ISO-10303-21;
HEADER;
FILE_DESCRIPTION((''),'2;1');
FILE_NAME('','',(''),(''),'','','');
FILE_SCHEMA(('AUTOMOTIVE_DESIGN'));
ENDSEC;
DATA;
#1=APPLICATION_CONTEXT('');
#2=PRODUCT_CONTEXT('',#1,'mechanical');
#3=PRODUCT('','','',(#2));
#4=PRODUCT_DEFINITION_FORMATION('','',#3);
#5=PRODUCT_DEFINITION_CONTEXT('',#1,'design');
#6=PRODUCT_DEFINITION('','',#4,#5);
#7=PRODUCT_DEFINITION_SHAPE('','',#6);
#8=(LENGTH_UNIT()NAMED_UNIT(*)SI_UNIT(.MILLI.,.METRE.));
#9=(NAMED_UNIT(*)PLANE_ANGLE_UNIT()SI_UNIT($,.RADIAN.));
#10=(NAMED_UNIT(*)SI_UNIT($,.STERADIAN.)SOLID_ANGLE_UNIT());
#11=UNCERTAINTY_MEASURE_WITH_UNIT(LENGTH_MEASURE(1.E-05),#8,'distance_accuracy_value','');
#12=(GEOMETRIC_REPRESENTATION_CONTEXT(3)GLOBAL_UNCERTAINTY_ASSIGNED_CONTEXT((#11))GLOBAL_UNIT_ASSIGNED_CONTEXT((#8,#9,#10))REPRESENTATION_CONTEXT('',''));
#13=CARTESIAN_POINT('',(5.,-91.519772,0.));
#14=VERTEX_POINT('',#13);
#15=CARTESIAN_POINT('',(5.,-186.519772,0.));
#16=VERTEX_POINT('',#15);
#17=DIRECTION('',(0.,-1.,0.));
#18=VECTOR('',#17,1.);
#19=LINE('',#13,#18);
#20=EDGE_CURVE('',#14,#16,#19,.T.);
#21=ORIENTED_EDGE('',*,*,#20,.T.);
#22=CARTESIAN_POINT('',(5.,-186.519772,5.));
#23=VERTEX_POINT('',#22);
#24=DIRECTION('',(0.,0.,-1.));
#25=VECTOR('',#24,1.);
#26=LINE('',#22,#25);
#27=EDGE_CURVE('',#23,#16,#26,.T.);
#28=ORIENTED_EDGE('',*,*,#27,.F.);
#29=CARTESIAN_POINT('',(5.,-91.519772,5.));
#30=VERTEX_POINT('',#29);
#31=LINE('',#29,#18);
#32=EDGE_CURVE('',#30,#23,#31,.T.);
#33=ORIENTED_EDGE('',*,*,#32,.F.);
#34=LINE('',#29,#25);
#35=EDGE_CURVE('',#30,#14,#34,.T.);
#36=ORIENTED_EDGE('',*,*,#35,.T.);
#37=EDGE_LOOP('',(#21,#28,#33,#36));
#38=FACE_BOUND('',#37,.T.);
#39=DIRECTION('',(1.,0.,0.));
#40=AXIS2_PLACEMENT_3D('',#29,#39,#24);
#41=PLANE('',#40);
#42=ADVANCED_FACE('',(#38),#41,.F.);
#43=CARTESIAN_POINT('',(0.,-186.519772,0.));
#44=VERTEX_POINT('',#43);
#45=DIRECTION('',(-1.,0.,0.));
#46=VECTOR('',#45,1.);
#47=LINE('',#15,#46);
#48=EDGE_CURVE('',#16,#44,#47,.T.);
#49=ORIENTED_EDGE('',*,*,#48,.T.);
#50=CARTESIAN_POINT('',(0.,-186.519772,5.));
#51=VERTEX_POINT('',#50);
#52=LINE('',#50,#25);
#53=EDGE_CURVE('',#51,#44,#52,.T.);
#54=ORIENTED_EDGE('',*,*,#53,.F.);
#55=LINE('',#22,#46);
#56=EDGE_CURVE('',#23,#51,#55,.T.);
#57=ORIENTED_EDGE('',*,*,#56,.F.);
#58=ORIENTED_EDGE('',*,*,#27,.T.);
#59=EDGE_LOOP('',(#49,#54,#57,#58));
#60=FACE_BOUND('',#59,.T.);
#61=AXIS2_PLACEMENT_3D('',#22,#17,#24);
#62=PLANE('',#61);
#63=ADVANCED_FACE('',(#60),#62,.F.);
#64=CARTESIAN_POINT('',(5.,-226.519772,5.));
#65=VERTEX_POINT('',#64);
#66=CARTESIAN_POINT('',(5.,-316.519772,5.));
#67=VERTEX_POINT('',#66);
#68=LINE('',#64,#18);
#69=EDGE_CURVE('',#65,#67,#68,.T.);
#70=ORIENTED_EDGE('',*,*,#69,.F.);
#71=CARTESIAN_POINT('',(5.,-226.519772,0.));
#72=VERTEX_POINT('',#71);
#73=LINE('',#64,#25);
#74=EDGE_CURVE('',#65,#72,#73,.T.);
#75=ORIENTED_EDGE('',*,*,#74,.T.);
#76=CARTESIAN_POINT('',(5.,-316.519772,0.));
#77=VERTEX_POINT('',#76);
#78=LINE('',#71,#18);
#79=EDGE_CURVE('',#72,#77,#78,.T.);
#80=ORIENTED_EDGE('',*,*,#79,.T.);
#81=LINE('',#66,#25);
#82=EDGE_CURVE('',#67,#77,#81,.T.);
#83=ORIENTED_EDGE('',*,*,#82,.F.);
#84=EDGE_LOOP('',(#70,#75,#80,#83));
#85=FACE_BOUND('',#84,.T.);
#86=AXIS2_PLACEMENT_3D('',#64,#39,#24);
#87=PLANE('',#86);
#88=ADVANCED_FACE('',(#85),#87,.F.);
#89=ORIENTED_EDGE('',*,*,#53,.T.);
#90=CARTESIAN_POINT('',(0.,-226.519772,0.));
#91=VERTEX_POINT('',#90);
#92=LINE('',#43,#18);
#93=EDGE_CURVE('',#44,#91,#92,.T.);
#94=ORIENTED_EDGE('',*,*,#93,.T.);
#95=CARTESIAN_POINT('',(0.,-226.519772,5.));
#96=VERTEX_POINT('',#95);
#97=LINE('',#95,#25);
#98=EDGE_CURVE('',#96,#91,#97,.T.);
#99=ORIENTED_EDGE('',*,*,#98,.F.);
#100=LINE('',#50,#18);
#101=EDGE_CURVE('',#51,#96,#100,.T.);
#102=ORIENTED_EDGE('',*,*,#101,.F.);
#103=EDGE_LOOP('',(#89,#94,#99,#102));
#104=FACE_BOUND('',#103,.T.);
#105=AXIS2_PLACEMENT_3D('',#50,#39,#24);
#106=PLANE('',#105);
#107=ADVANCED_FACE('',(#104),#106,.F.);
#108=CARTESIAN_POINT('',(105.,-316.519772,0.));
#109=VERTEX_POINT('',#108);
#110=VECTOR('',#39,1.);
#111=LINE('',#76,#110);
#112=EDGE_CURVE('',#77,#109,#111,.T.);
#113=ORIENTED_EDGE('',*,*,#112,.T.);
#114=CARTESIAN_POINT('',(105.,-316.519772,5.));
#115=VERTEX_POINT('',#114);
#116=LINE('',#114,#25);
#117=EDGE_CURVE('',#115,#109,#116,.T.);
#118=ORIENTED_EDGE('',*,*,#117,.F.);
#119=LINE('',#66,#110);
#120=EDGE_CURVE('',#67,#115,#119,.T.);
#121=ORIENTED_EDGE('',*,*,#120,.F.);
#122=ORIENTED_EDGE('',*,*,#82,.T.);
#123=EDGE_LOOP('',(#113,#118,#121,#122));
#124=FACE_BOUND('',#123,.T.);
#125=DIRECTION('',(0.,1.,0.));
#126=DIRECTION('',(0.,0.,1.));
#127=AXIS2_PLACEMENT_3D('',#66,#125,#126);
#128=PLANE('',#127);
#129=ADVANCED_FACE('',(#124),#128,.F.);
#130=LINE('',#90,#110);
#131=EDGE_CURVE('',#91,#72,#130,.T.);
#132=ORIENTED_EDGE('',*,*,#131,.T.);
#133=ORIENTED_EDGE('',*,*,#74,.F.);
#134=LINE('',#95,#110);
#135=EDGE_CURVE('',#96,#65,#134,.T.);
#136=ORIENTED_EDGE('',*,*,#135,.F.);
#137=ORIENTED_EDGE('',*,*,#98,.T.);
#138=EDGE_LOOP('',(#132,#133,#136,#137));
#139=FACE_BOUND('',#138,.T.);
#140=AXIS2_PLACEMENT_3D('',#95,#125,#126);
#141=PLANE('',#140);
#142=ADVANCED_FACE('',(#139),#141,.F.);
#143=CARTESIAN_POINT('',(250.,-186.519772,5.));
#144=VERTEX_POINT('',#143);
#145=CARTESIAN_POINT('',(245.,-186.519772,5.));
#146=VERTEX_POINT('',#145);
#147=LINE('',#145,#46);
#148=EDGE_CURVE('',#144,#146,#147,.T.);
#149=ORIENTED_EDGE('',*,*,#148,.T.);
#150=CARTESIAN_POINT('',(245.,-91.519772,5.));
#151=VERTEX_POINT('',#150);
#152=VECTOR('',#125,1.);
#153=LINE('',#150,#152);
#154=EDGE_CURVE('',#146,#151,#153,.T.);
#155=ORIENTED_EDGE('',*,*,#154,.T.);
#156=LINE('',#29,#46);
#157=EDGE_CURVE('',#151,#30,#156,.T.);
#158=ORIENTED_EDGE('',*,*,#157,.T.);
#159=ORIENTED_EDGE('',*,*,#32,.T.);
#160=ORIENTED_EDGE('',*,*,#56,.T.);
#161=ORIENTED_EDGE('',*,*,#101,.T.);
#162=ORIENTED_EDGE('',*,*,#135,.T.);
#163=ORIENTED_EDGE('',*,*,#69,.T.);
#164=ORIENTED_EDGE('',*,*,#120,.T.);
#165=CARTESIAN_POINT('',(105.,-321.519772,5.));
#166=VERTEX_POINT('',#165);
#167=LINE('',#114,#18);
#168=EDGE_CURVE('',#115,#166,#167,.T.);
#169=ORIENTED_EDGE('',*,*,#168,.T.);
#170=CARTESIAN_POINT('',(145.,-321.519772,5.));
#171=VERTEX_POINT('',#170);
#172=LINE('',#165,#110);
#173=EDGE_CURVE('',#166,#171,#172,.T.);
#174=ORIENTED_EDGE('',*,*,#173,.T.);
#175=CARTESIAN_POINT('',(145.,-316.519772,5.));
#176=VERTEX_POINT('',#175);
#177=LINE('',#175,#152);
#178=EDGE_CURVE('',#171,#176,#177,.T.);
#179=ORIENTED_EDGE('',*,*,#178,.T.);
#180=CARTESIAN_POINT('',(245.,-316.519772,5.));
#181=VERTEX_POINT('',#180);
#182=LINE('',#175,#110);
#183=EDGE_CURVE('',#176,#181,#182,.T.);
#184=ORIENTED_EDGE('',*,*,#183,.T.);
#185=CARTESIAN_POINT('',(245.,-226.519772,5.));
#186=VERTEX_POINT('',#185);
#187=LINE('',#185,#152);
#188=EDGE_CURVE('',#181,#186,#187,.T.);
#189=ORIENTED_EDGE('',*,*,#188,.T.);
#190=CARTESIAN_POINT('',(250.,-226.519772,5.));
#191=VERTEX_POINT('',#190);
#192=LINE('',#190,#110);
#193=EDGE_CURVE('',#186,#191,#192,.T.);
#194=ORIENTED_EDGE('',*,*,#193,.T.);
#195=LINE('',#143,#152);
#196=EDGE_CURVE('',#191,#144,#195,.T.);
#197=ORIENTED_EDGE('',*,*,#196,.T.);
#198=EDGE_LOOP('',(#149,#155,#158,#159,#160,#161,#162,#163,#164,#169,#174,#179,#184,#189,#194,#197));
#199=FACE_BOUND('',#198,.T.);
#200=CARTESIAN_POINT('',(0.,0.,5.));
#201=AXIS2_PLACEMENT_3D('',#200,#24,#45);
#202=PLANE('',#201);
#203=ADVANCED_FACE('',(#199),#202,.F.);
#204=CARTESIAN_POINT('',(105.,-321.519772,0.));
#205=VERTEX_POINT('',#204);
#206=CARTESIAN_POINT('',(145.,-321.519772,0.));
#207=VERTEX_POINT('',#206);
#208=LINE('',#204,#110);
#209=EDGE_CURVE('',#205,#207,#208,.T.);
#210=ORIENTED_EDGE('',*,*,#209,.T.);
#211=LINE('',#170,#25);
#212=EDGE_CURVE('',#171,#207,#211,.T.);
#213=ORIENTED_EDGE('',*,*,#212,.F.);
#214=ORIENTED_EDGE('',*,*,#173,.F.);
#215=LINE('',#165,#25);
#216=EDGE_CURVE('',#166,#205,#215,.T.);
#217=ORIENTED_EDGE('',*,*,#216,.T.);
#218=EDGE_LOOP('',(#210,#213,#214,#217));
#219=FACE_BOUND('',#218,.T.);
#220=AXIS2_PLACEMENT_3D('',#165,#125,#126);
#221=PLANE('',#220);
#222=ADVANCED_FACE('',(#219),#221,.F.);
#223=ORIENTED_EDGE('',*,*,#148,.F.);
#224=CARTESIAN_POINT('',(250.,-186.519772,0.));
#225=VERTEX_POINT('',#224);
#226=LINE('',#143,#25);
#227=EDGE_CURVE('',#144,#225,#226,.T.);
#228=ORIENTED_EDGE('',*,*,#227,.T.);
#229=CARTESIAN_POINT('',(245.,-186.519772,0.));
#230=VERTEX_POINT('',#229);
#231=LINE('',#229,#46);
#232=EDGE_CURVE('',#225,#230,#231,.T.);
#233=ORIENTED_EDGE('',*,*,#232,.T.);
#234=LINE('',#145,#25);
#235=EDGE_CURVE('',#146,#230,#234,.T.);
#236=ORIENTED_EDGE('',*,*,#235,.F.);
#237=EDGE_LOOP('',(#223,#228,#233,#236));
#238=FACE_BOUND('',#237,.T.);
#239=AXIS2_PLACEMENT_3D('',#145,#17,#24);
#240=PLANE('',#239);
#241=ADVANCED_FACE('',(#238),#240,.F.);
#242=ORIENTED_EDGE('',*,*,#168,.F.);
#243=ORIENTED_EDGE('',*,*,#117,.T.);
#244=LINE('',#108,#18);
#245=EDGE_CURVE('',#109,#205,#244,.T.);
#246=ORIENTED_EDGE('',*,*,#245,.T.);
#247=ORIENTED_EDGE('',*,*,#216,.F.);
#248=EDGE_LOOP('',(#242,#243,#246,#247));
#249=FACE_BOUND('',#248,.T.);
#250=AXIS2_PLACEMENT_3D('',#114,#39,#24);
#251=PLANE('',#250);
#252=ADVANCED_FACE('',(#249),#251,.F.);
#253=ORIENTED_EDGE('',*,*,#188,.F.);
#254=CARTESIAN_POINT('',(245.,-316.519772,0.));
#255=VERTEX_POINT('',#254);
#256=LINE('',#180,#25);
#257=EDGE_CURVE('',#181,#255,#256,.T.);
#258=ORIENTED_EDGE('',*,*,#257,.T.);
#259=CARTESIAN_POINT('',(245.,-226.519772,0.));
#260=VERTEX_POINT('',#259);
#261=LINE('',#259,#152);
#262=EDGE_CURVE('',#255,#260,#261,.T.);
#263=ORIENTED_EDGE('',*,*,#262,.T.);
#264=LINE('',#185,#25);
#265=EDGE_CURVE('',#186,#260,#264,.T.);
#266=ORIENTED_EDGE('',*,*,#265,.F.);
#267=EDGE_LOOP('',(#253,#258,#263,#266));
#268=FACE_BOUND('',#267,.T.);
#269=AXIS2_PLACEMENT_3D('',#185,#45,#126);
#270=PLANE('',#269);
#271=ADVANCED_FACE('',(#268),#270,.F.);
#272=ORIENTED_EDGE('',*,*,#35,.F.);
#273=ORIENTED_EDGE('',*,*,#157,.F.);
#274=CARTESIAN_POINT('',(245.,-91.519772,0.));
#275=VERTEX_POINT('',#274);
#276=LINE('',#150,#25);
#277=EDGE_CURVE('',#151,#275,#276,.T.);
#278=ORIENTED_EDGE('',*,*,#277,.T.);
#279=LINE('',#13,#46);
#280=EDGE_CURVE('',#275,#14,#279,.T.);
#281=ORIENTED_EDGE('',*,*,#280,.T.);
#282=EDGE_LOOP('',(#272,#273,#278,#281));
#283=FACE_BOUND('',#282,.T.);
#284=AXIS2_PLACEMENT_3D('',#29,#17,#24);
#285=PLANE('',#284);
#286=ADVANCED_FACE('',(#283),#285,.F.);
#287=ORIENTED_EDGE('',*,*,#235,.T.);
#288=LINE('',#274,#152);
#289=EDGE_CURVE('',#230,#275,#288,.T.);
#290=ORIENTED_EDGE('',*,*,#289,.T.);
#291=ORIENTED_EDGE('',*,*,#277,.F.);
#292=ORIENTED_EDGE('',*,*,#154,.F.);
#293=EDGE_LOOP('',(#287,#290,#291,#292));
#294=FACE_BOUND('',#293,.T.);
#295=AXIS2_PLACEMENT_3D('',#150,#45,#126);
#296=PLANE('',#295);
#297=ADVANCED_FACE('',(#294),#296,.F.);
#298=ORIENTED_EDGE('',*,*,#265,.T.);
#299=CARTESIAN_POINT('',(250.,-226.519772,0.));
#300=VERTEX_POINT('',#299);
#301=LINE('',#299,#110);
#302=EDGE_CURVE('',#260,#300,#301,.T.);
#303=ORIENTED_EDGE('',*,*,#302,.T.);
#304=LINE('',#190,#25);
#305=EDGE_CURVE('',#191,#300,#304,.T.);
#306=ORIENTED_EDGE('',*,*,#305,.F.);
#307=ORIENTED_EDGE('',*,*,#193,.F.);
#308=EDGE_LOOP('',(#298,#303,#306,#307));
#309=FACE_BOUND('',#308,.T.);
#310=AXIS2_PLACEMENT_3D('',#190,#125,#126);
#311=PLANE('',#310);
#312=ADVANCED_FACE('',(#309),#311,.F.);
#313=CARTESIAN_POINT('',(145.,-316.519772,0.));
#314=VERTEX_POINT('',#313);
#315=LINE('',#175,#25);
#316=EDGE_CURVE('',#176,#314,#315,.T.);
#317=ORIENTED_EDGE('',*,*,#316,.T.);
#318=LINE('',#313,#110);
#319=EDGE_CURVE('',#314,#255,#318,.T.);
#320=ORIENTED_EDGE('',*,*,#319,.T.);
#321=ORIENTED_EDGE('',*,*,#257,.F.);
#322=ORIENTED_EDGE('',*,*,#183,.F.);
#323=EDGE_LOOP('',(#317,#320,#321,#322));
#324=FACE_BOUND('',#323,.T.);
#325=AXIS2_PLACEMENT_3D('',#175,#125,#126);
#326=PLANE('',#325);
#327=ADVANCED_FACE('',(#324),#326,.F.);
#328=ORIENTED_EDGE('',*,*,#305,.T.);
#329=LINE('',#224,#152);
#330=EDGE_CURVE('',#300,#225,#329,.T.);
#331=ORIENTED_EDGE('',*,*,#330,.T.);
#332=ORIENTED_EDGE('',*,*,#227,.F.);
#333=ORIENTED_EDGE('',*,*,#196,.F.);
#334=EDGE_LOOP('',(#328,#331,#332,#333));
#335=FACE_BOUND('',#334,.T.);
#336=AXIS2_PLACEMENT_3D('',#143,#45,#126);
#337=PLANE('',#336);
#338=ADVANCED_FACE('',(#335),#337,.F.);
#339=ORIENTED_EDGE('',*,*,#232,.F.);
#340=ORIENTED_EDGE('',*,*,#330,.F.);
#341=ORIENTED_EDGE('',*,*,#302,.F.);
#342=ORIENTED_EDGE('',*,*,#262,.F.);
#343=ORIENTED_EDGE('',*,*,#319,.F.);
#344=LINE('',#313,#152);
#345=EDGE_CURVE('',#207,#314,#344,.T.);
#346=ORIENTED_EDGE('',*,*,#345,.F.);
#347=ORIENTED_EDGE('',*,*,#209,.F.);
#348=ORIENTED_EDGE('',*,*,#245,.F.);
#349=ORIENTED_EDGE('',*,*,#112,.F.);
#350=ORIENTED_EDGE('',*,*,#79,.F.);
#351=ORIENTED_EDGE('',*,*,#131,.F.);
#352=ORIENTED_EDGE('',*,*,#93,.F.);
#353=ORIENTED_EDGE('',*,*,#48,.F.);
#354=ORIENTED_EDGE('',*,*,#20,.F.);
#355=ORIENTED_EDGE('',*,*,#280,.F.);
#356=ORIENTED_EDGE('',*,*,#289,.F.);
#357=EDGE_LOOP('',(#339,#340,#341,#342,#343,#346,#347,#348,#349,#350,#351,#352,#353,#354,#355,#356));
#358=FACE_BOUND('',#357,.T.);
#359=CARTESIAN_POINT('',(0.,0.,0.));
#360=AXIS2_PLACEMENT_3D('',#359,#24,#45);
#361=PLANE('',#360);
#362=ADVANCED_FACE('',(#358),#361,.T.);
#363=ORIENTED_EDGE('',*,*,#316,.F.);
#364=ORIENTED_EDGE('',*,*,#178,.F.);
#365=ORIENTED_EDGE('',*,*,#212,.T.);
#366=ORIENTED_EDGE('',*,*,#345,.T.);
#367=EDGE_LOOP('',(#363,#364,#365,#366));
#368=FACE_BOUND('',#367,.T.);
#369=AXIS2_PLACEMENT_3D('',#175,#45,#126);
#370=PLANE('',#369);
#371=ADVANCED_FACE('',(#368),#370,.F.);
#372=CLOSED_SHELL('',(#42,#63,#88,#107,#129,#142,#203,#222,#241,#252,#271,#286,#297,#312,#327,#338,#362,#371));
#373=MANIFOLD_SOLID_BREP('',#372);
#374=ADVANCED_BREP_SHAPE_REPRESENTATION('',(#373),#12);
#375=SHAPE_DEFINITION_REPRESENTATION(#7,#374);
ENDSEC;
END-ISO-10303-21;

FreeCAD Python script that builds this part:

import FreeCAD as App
import Part
import Sketcher

V = App.Vector
Q = App.Units.Quantity

doc = App.newDocument("Part")
body = doc.addObject("PartDesign::Body", "Body")

sketch1 = body.newObject("Sketcher::SketchObject", "Sketch")
sketch1.AttachmentSupport = (doc.getObject("XY_Plane"), [""])
sketch1.MapMode = "FlatFace"
sketch1.addGeometry(Part.LineSegment(V(245, -92, 0), V(5, -92, 0)), False)
sketch1.addGeometry(Part.LineSegment(V(5, -92, 0), V(5, -187, 0)), False)
sketch1.addGeometry(Part.LineSegment(V(5, -187, 0), V(0, -187, 0)), False)
sketch1.addGeometry(Part.LineSegment(V(0, -187, 0), V(0, -227, 0)), False)
sketch1.addGeometry(Part.LineSegment(V(0, -227, 0), V(5, -227, 0)), False)
sketch1.addGeometry(Part.LineSegment(V(5, -227, 0), V(5, -317, 0)), False)
sketch1.addGeometry(Part.LineSegment(V(5, -317, 0), V(105, -317, 0)), False)
sketch1.addGeometry(Part.LineSegment(V(105, -317, 0), V(105, -322, 0)), False)
sketch1.addGeometry(Part.LineSegment(V(105, -322, 0), V(145, -322, 0)), False)
sketch1.addGeometry(Part.LineSegment(V(145, -322, 0), V(145, -317, 0)), False)
sketch1.addGeometry(Part.LineSegment(V(145, -317, 0), V(245, -317, 0)), False)
sketch1.addGeometry(Part.LineSegment(V(245, -317, 0), V(245, -227, 0)), False)
sketch1.addGeometry(Part.LineSegment(V(245, -227, 0), V(250, -227, 0)), False)
sketch1.addGeometry(Part.LineSegment(V(250, -227, 0), V(250, -187, 0)), False)
sketch1.addGeometry(Part.LineSegment(V(250, -187, 0), V(245, -187, 0)), False)
sketch1.addGeometry(Part.LineSegment(V(245, -187, 0), V(245, -92, 0)), False)
sketch1.addConstraint(Sketcher.Constraint("Coincident", 0, 2, 1, 1))
sketch1.addConstraint(Sketcher.Constraint("Coincident", 1, 2, 2, 1))
sketch1.addConstraint(Sketcher.Constraint("Coincident", 2, 2, 3, 1))
sketch1.addConstraint(Sketcher.Constraint("Coincident", 3, 2, 4, 1))
sketch1.addConstraint(Sketcher.Constraint("Coincident", 4, 2, 5, 1))
sketch1.addConstraint(Sketcher.Constraint("Coincident", 5, 2, 6, 1))
sketch1.addConstraint(Sketcher.Constraint("Coincident", 6, 2, 7, 1))
sketch1.addConstraint(Sketcher.Constraint("Coincident", 7, 2, 8, 1))
sketch1.addConstraint(Sketcher.Constraint("Coincident", 8, 2, 9, 1))
sketch1.addConstraint(Sketcher.Constraint("Coincident", 9, 2, 10, 1))
sketch1.addConstraint(Sketcher.Constraint("Coincident", 10, 2, 11, 1))
sketch1.addConstraint(Sketcher.Constraint("Coincident", 11, 2, 12, 1))
sketch1.addConstraint(Sketcher.Constraint("Coincident", 12, 2, 13, 1))
sketch1.addConstraint(Sketcher.Constraint("Coincident", 13, 2, 14, 1))
sketch1.addConstraint(Sketcher.Constraint("Coincident", 14, 2, 15, 1))
sketch1.addConstraint(Sketcher.Constraint("Coincident", 15, 2, 0, 1))
sketch1.addConstraint(Sketcher.Constraint("Horizontal", 0))
sketch1.addConstraint(Sketcher.Constraint("Vertical", 1))
sketch1.addConstraint(Sketcher.Constraint("Horizontal", 2))
sketch1.addConstraint(Sketcher.Constraint("Vertical", 3))
sketch1.addConstraint(Sketcher.Constraint("Horizontal", 4))
sketch1.addConstraint(Sketcher.Constraint("Vertical", 5))
sketch1.addConstraint(Sketcher.Constraint("Horizontal", 6))
sketch1.addConstraint(Sketcher.Constraint("Vertical", 7))
sketch1.addConstraint(Sketcher.Constraint("Horizontal", 8))
sketch1.addConstraint(Sketcher.Constraint("Vertical", 9))
sketch1.addConstraint(Sketcher.Constraint("Horizontal", 10))
sketch1.addConstraint(Sketcher.Constraint("Vertical", 11))
sketch1.addConstraint(Sketcher.Constraint("Horizontal", 12))
sketch1.addConstraint(Sketcher.Constraint("Vertical", 13))
sketch1.addConstraint(Sketcher.Constraint("Horizontal", 14))
sketch1.addConstraint(Sketcher.Constraint("Vertical", 15))
sketch1.addConstraint(Sketcher.Constraint("PointOnObject", 2, 2, -2))
sketch1.addConstraint(Sketcher.Constraint("Horizontal", 6, 2, 9, 2))
sketch1.addConstraint(Sketcher.Constraint("Horizontal", 4, 2, 11, 2))
sketch1.addConstraint(Sketcher.Constraint("Horizontal", 2, 2, 13, 2))
sketch1.addConstraint(Sketcher.Constraint("Vertical", 1, 2, 4, 2))
sketch1.addConstraint(Sketcher.Constraint("Vertical", 11, 2, 14, 2))
sketch1.addConstraint(Sketcher.Constraint("Equal", 6, 10))
sketch1.addConstraint(Sketcher.Constraint("Equal", 4, 12))
sketch1.addConstraint(Sketcher.Constraint("Equal", 8, 3))
sketch1.addConstraint(Sketcher.Constraint("Equal", 14, 7))
sketch1.addConstraint(Sketcher.Constraint("DistanceX", 0, 2, 0, 1, Q("240 mm")))
sketch1.addConstraint(Sketcher.Constraint("DistanceX", 2, 2, 2, 1, Q("5 mm")))
sketch1.addConstraint(Sketcher.Constraint("DistanceX", 6, 1, 6, 2, Q("100 mm")))
sketch1.addConstraint(Sketcher.Constraint("DistanceY", 1, 2, 1, 1, Q("95 mm")))
sketch1.addConstraint(Sketcher.Constraint("DistanceY", 5, 2, 5, 1, Q("90 mm")))
sketch1.addConstraint(Sketcher.Constraint("DistanceY", 0, 2, -1, 1, Q("91.519772 mm")))
pad1 = body.newObject("PartDesign::Pad", "Pad")
pad1.Profile = sketch1
pad1.Length = 5

doc.recompute()
